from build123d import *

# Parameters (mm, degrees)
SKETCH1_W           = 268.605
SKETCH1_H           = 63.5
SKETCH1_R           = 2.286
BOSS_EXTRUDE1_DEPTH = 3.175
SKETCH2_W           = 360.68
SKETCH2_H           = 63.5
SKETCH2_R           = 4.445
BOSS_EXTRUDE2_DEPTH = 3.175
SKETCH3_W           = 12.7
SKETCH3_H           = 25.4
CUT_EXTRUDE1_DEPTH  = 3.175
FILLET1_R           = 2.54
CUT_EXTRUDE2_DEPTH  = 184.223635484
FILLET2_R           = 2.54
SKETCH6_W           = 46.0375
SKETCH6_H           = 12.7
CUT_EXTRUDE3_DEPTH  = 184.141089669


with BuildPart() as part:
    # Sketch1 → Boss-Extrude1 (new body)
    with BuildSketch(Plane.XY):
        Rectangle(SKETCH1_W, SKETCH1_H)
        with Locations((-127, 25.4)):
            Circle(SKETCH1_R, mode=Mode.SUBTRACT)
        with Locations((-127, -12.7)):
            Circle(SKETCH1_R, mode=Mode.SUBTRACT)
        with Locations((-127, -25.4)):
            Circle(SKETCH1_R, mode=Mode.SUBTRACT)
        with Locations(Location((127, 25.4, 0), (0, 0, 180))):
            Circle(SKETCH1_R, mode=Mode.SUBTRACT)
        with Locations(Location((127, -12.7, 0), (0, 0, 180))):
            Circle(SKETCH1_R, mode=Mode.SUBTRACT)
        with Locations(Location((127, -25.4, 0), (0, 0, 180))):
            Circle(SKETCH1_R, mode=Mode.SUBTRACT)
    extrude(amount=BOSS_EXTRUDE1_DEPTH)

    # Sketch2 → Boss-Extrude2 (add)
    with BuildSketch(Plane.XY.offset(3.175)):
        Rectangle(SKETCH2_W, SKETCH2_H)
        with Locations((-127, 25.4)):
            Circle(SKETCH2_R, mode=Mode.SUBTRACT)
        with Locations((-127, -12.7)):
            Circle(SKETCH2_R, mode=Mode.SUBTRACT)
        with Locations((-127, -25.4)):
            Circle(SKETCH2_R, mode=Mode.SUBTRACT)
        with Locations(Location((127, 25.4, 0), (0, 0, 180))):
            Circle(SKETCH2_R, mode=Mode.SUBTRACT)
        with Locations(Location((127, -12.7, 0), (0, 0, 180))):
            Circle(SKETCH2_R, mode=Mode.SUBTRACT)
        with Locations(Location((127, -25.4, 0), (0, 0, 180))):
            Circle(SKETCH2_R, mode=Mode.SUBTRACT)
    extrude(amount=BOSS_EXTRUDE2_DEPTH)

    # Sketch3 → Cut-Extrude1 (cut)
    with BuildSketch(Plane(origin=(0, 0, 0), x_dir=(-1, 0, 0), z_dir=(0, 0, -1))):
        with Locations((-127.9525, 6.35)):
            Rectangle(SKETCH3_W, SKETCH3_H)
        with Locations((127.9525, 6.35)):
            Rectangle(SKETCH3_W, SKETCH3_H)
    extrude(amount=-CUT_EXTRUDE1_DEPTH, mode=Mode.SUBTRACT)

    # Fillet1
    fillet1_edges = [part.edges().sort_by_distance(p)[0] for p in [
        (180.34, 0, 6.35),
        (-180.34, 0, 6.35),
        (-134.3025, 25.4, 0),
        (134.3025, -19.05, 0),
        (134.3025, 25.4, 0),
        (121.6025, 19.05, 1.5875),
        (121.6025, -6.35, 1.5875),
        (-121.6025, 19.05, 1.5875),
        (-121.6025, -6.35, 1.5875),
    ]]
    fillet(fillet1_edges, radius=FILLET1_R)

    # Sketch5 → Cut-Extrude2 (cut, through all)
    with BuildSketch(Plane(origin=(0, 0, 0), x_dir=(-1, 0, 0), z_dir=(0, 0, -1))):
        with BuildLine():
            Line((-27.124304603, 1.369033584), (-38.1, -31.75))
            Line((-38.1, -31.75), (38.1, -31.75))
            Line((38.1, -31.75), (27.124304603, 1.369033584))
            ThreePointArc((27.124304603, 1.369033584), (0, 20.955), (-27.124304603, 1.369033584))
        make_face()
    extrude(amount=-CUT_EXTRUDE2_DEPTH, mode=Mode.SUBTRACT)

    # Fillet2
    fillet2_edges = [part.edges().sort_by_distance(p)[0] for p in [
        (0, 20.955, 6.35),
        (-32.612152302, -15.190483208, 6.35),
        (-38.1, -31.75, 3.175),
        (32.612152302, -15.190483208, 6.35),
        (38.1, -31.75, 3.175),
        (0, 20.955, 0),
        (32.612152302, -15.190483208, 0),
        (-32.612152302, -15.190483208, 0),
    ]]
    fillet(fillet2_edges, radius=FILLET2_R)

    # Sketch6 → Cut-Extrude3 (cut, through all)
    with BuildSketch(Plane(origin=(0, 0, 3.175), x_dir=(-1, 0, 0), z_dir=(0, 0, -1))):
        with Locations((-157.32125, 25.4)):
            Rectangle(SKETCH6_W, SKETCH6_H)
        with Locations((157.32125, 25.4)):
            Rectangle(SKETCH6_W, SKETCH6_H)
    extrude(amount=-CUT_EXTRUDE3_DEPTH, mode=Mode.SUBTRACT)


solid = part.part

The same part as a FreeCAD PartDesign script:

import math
import FreeCAD as App
import Part
import Sketcher
Q = App.Units.Quantity


def edges_at(feature, points):
    """Names of the edges that pass closest to the given points."""
    edges = feature.Shape.Edges
    near = lambda p: min(range(len(edges)), key=lambda i: edges[i].distToShape(Part.Vertex(*p))[0])
    return sorted({f"Edge{near(p) + 1}" for p in points})

doc = App.newDocument("Part")
params = doc.addObject("Spreadsheet::Sheet", "Params")
for row, (alias, value) in enumerate([
    ("sketch1_diameter", "0.18 in"),
    ("sketch1_height", "2.5 in"),
    ("sketch1_width", "10.575 in"),
    ("pad1_length", "0.125 in"),
    ("sketch2_diameter", "0.35 in"),
    ("sketch2_width", "14.2 in"),
    ("sketch2_height", "2.5 in"),
    ("pad2_length", "0.125 in"),
    ("sketch3_height", "1 in"),
    ("sketch3_width", "0.5 in"),
    ("pocket1_length", "0.125 in"),
    ("fillet_radius", "0.1 in"),
    ("sketch4_width", "3 in"),
    ("sketch4_radius", "1.125 in"),
    ("fillet2_radius", "0.1 in"),
    ("sketch5_height", "0.5 in"),
    ("sketch5_width", "1.8125 in"),
], start=1):
    params.set(f"A{row}", alias)
    params.set(f"B{row}", "=" + value)
    params.setAlias(f"B{row}", alias)

body = doc.addObject("PartDesign::Body", "Body")

sketch1 = body.newObject("Sketcher::SketchObject", "Sketch")
sketch1.AttachmentSupport = (doc.getObject("XY_Plane"), [""])
sketch1.MapMode = "FlatFace"
sketch1.addGeometry([
    Part.LineSegment(App.Vector(-134.3, 31.8, 0), App.Vector(-134.3, -31.8, 0)),
    Part.LineSegment(App.Vector(-134.3, -31.8, 0), App.Vector(134.3, -31.8, 0)),
    Part.LineSegment(App.Vector(134.3, -31.8, 0), App.Vector(134.3, 31.8, 0)),
    Part.LineSegment(App.Vector(134.3, 31.8, 0), App.Vector(-134.3, 31.8, 0)),
    Part.Circle(App.Vector(-127, -25.4, 0), App.Vector(0, 0, 1), 2.3),
    Part.Circle(App.Vector(-127, -12.7, 0), App.Vector(0, 0, 1), 2.3),
    Part.Circle(App.Vector(127, -25.4, 0), App.Vector(0, 0, 1), 2.3),
    Part.Circle(App.Vector(127, -12.7, 0), App.Vector(0, 0, 1), 2.3),
    Part.Circle(App.Vector(-127, 25.4, 0), App.Vector(0, 0, 1), 2.3),
    Part.Circle(App.Vector(127, 25.4, 0), App.Vector(0, 0, 1), 2.3),
], False)
sketch1.addConstraint([
    Sketcher.Constraint("Coincident", 0, 2, 1, 1),
    Sketcher.Constraint("Coincident", 1, 2, 2, 1),
    Sketcher.Constraint("Coincident", 2, 2, 3, 1),
    Sketcher.Constraint("Coincident", 3, 2, 0, 1),
    Sketcher.Constraint("Vertical", 0),
    Sketcher.Constraint("Horizontal", 1),
    Sketcher.Constraint("Vertical", 2),
    Sketcher.Constraint("Horizontal", 3),
    Sketcher.Constraint("Equal", 4, 5),
    Sketcher.Constraint("Equal", 5, 6),
    Sketcher.Constraint("Equal", 6, 7),
    Sketcher.Constraint("Equal", 7, 8),
    Sketcher.Constraint("Equal", 8, 9),
    Sketcher.Constraint("Symmetric", 6, 3, 8, 3, -1, 1),
    Sketcher.Constraint("Symmetric", 4, 3, 9, 3, -1, 1),
    Sketcher.Constraint("Symmetric", 0, 2, 2, 2, -1, 1),
    Sketcher.Constraint("Symmetric", 4, 3, 6, 3, -2),
    Sketcher.Constraint("Symmetric", 5, 3, 7, 3, -2),
    Sketcher.Constraint("Vertical", 4, 3, 5, 3),
    Sketcher.Constraint("Diameter", 4, Q("0.18 in")),
    Sketcher.Constraint("DistanceY", 0, 2, 0, 1, Q("2.5 in")),
    Sketcher.Constraint("DistanceX", 4, 3, -1, 1, Q("5 in")),
    Sketcher.Constraint("DistanceY", 4, 3, -1, 1, Q("1 in")),
    Sketcher.Constraint("DistanceY", 5, 3, -1, 1, Q("0.5 in")),
    Sketcher.Constraint("DistanceX", 1, 1, 1, 2, Q("10.575 in")),
])
sketch1.setExpression("Constraints[19]", "Params.sketch1_diameter")
sketch1.setExpression("Constraints[20]", "Params.sketch1_height")
sketch1.setExpression("Constraints[24]", "Params.sketch1_width")
pad1 = body.newObject("PartDesign::Pad", "Pad")
pad1.Profile = sketch1
pad1.setExpression("Length", "Params.pad1_length")

sketch2 = body.newObject("Sketcher::SketchObject", "Sketch001")
sketch2.AttachmentSupport = (doc.getObject("XY_Plane"), [""])
sketch2.MapMode = "FlatFace"
sketch2.AttachmentOffset = App.Placement(App.Vector(0, 0, 0.125 * 25.4), App.Rotation())
sketch2.addGeometry([
    Part.LineSegment(App.Vector(-180.3, 31.8, 0), App.Vector(-180.3, -31.8, 0)),
    Part.LineSegment(App.Vector(-180.3, -31.8, 0), App.Vector(180.3, -31.8, 0)),
    Part.LineSegment(App.Vector(180.3, -31.8, 0), App.Vector(180.3, 31.8, 0)),
    Part.LineSegment(App.Vector(180.3, 31.8, 0), App.Vector(-180.3, 31.8, 0)),
    Part.Circle(App.Vector(-127, -25.4, 0), App.Vector(0, 0, 1), 4.4),
    Part.Circle(App.Vector(-127, -12.7, 0), App.Vector(0, 0, 1), 4.4),
    Part.Circle(App.Vector(127, -25.4, 0), App.Vector(0, 0, 1), 4.4),
    Part.Circle(App.Vector(127, -12.7, 0), App.Vector(0, 0, 1), 4.4),
    Part.Circle(App.Vector(-127, 25.4, 0), App.Vector(0, 0, 1), 4.4),
    Part.Circle(App.Vector(127, 25.4, 0), App.Vector(0, 0, 1), 4.4),
], False)
sketch2.addConstraint([
    Sketcher.Constraint("Coincident", 0, 2, 1, 1),
    Sketcher.Constraint("Coincident", 1, 2, 2, 1),
    Sketcher.Constraint("Coincident", 2, 2, 3, 1),
    Sketcher.Constraint("Coincident", 3, 2, 0, 1),
    Sketcher.Constraint("Vertical", 0),
    Sketcher.Constraint("Horizontal", 1),
    Sketcher.Constraint("Vertical", 2),
    Sketcher.Constraint("Horizontal", 3),
    Sketcher.Constraint("Equal", 4, 5),
    Sketcher.Constraint("Equal", 5, 6),
    Sketcher.Constraint("Equal", 6, 7),
    Sketcher.Constraint("Equal", 7, 8),
    Sketcher.Constraint("Equal", 8, 9),
    Sketcher.Constraint("Symmetric", 6, 3, 8, 3, -1, 1),
    Sketcher.Constraint("Symmetric", 4, 3, 9, 3, -1, 1),
    Sketcher.Constraint("Symmetric", 0, 2, 2, 2, -1, 1),
    Sketcher.Constraint("Symmetric", 4, 3, 6, 3, -2),
    Sketcher.Constraint("Symmetric", 5, 3, 7, 3, -2),
    Sketcher.Constraint("Vertical", 4, 3, 5, 3),
    Sketcher.Constraint("Diameter", 4, Q("0.35 in")),
    Sketcher.Constraint("DistanceX", 1, 1, 1, 2, Q("14.2 in")),
    Sketcher.Constraint("DistanceY", 0, 2, 0, 1, Q("2.5 in")),
    Sketcher.Constraint("DistanceX", 4, 3, -1, 1, Q("5 in")),
    Sketcher.Constraint("DistanceY", 4, 3, -1, 1, Q("1 in")),
    Sketcher.Constraint("DistanceY", 5, 3, -1, 1, Q("0.5 in")),
])
sketch2.setExpression("Constraints[19]", "Params.sketch2_diameter")
sketch2.setExpression("Constraints[20]", "Params.sketch2_width")
sketch2.setExpression("Constraints[21]", "Params.sketch2_height")
pad2 = body.newObject("PartDesign::Pad", "Pad001")
pad2.Profile = sketch2
pad2.setExpression("Length", "Params.pad2_length")

sketch3 = body.newObject("Sketcher::SketchObject", "Sketch002")
sketch3.AttachmentSupport = (doc.getObject("XY_Plane"), [""])
sketch3.MapMode = "FlatFace"
sketch3.addGeometry([
    Part.LineSegment(App.Vector(134, 19, 0), App.Vector(134, -6, 0)),
    Part.LineSegment(App.Vector(134, -6, 0), App.Vector(122, -6, 0)),
    Part.LineSegment(App.Vector(122, -6, 0), App.Vector(122, 19, 0)),
    Part.LineSegment(App.Vector(122, 19, 0), App.Vector(134, 19, 0)),
    Part.LineSegment(App.Vector(-122, 19, 0), App.Vector(-122, -6, 0)),
    Part.LineSegment(App.Vector(-122, -6, 0), App.Vector(-134, -6, 0)),
    Part.LineSegment(App.Vector(-134, -6, 0), App.Vector(-134, 19, 0)),
    Part.LineSegment(App.Vector(-134, 19, 0), App.Vector(-122, 19, 0)),
], False)
sketch3.addConstraint([
    Sketcher.Constraint("Coincident", 0, 2, 1, 1),
    Sketcher.Constraint("Coincident", 1, 2, 2, 1),
    Sketcher.Constraint("Coincident", 2, 2, 3, 1),
    Sketcher.Constraint("Coincident", 3, 2, 0, 1),
    Sketcher.Constraint("Coincident", 4, 2, 5, 1),
    Sketcher.Constraint("Coincident", 5, 2, 6, 1),
    Sketcher.Constraint("Coincident", 6, 2, 7, 1),
    Sketcher.Constraint("Coincident", 7, 2, 4, 1),
    Sketcher.Constraint("Vertical", 0),
    Sketcher.Constraint("Horizontal", 1),
    Sketcher.Constraint("Vertical", 2),
    Sketcher.Constraint("Horizontal", 3),
    Sketcher.Constraint("Vertical", 4),
    Sketcher.Constraint("Horizontal", 5),
    Sketcher.Constraint("Vertical", 6),
    Sketcher.Constraint("Horizontal", 7),
    Sketcher.Constraint("Symmetric", 1, 2, 4, 2, -2),
    Sketcher.Constraint("Symmetric", 3, 2, 6, 2, -2),
    Sketcher.Constraint("DistanceY", 0, 2, 0, 1, Q("1 in")),
    Sketcher.Constraint("DistanceX", 1, 2, 1, 1, Q("0.5 in")),
    Sketcher.Constraint("DistanceY", 0, 2, -1, 1, Q("0.25 in")),
    Sketcher.Constraint("DistanceX", 4, 2, 1, 2, Q("9.575 in")),
])
sketch3.setExpression("Constraints[18]", "Params.sketch3_height")
sketch3.setExpression("Constraints[19]", "Params.sketch3_width")
pocket1 = body.newObject("PartDesign::Pocket", "Pocket")
pocket1.Profile = sketch3
pocket1.setExpression("Length", "Params.pocket1_length")
pocket1.Reversed = True
doc.recompute()

fillet = body.newObject("PartDesign::Fillet", "Fillet")
fillet.Base = (pocket1, edges_at(pocket1, [
    (180.34, 0, 6.35),
    (-180.34, 0, 6.35),
    (-134.303, 25.4, 0),
    (134.303, -19.05, 0),
    (134.303, 25.4, 0),
    (121.603, 19.05, 1.587),
    (121.603, -6.35, 1.587),
    (-121.603, 19.05, 1.587),
    (-121.603, -6.35, 1.587),
]))
fillet.setExpression("Radius", "Params.fillet_radius")

sketch4 = body.newObject("Sketcher::SketchObject", "Sketch003")
sketch4.AttachmentSupport = (doc.getObject("XY_Plane"), [""])
sketch4.MapMode = "FlatFace"
sketch4.addGeometry([
    Part.LineSegment(App.Vector(27, 1, 0), App.Vector(38, -32, 0)),
    Part.LineSegment(App.Vector(38, -32, 0), App.Vector(-38, -32, 0)),
    Part.LineSegment(App.Vector(-38, -32, 0), App.Vector(-27, 1, 0)),
    Part.ArcOfCircle(Part.Circle(App.Vector(0, -8, 0), App.Vector(0, 0, 1), 29), math.radians(18), math.radians(162)),
], False)
sketch4.addConstraint([
    Sketcher.Constraint("Coincident", 0, 2, 1, 1),
    Sketcher.Constraint("Coincident", 1, 2, 2, 1),
    Sketcher.Constraint("Tangent", 2, 2, 3, 2),
    Sketcher.Constraint("Tangent", 3, 1, 0, 1),
    Sketcher.Constraint("Horizontal", 1),
    Sketcher.Constraint("Symmetric", 2, 2, 3, 1, -2),
    Sketcher.Constraint("DistanceX", 1, 2, 1, 1, Q("3 in")),
    Sketcher.Constraint("Radius", 3, Q("1.125 in")),
    Sketcher.Constraint("DistanceY", 3, 3, -1, 1, Q("0.3 in")),
    Sketcher.Constraint("DistanceY", 0, 2, -1, 1, Q("1.25 in")),
])
sketch4.setExpression("Constraints[6]", "Params.sketch4_width")
sketch4.setExpression("Constraints[7]", "Params.sketch4_radius")
pocket2 = body.newObject("PartDesign::Pocket", "Pocket001")
pocket2.Profile = sketch4
pocket2.Type = "ThroughAll"
pocket2.Reversed = True
doc.recompute()

fillet2 = body.newObject("PartDesign::Fillet", "Fillet001")
fillet2.Base = (pocket2, edges_at(pocket2, [
    (0, 20.955, 6.35),
    (-32.612, -15.19, 6.35),
    (-38.1, -31.75, 3.175),
    (32.612, -15.19, 6.35),
    (38.1, -31.75, 3.175),
    (0, 20.955, 0),
    (32.612, -15.19, 0),
    (-32.612, -15.19, 0),
]))
fillet2.setExpression("Radius", "Params.fillet2_radius")

sketch5 = body.newObject("Sketcher::SketchObject", "Sketch004")
sketch5.AttachmentSupport = (doc.getObject("XY_Plane"), [""])
sketch5.MapMode = "FlatFace"
sketch5.AttachmentOffset = App.Placement(App.Vector(0, 0, 0.125 * 25.4), App.Rotation())
sketch5.addGeometry([
    Part.LineSegment(App.Vector(180, 32, 0), App.Vector(180, 19, 0)),
    Part.LineSegment(App.Vector(180, 19, 0), App.Vector(134, 19, 0)),
    Part.LineSegment(App.Vector(134, 19, 0), App.Vector(134, 32, 0)),
    Part.LineSegment(App.Vector(134, 32, 0), App.Vector(180, 32, 0)),
    Part.LineSegment(App.Vector(-134, 32, 0), App.Vector(-134, 19, 0)),
    Part.LineSegment(App.Vector(-134, 19, 0), App.Vector(-180, 19, 0)),
    Part.LineSegment(App.Vector(-180, 19, 0), App.Vector(-180, 32, 0)),
    Part.LineSegment(App.Vector(-180, 32, 0), App.Vector(-134, 32, 0)),
], False)
sketch5.addConstraint([
    Sketcher.Constraint("Coincident", 0, 2, 1, 1),
    Sketcher.Constraint("Coincident", 1, 2, 2, 1),
    Sketcher.Constraint("Coincident", 2, 2, 3, 1),
    Sketcher.Constraint("Coincident", 3, 2, 0, 1),
    Sketcher.Constraint("Coincident", 4, 2, 5, 1),
    Sketcher.Constraint("Coincident", 5, 2, 6, 1),
    Sketcher.Constraint("Coincident", 6, 2, 7, 1),
    Sketcher.Constraint("Coincident", 7, 2, 4, 1),
    Sketcher.Constraint("Vertical", 0),
    Sketcher.Constraint("Horizontal", 1),
    Sketcher.Constraint("Vertical", 2),
    Sketcher.Constraint("Horizontal", 3),
    Sketcher.Constraint("Vertical", 4),
    Sketcher.Constraint("Horizontal", 5),
    Sketcher.Constraint("Vertical", 6),
    Sketcher.Constraint("Horizontal", 7),
    Sketcher.Constraint("Symmetric", 1, 2, 4, 2, -2),
    Sketcher.Constraint("Symmetric", 3, 2, 6, 2, -2),
    Sketcher.Constraint("DistanceY", 0, 2, 0, 1, Q("0.5 in")),
    Sketcher.Constraint("DistanceX", -1, 1, 0, 2, Q("7.1 in")),
    Sketcher.Constraint("DistanceX", 1, 2, 1, 1, Q("1.8125 in")),
    Sketcher.Constraint("DistanceY", -1, 1, 0, 2, Q("0.75 in")),
])
sketch5.setExpression("Constraints[18]", "Params.sketch5_height")
sketch5.setExpression("Constraints[20]", "Params.sketch5_width")
pocket3 = body.newObject("PartDesign::Pocket", "Pocket002")
pocket3.Profile = sketch5
pocket3.Type = "ThroughAll"
pocket3.Reversed = True

doc.recompute()
